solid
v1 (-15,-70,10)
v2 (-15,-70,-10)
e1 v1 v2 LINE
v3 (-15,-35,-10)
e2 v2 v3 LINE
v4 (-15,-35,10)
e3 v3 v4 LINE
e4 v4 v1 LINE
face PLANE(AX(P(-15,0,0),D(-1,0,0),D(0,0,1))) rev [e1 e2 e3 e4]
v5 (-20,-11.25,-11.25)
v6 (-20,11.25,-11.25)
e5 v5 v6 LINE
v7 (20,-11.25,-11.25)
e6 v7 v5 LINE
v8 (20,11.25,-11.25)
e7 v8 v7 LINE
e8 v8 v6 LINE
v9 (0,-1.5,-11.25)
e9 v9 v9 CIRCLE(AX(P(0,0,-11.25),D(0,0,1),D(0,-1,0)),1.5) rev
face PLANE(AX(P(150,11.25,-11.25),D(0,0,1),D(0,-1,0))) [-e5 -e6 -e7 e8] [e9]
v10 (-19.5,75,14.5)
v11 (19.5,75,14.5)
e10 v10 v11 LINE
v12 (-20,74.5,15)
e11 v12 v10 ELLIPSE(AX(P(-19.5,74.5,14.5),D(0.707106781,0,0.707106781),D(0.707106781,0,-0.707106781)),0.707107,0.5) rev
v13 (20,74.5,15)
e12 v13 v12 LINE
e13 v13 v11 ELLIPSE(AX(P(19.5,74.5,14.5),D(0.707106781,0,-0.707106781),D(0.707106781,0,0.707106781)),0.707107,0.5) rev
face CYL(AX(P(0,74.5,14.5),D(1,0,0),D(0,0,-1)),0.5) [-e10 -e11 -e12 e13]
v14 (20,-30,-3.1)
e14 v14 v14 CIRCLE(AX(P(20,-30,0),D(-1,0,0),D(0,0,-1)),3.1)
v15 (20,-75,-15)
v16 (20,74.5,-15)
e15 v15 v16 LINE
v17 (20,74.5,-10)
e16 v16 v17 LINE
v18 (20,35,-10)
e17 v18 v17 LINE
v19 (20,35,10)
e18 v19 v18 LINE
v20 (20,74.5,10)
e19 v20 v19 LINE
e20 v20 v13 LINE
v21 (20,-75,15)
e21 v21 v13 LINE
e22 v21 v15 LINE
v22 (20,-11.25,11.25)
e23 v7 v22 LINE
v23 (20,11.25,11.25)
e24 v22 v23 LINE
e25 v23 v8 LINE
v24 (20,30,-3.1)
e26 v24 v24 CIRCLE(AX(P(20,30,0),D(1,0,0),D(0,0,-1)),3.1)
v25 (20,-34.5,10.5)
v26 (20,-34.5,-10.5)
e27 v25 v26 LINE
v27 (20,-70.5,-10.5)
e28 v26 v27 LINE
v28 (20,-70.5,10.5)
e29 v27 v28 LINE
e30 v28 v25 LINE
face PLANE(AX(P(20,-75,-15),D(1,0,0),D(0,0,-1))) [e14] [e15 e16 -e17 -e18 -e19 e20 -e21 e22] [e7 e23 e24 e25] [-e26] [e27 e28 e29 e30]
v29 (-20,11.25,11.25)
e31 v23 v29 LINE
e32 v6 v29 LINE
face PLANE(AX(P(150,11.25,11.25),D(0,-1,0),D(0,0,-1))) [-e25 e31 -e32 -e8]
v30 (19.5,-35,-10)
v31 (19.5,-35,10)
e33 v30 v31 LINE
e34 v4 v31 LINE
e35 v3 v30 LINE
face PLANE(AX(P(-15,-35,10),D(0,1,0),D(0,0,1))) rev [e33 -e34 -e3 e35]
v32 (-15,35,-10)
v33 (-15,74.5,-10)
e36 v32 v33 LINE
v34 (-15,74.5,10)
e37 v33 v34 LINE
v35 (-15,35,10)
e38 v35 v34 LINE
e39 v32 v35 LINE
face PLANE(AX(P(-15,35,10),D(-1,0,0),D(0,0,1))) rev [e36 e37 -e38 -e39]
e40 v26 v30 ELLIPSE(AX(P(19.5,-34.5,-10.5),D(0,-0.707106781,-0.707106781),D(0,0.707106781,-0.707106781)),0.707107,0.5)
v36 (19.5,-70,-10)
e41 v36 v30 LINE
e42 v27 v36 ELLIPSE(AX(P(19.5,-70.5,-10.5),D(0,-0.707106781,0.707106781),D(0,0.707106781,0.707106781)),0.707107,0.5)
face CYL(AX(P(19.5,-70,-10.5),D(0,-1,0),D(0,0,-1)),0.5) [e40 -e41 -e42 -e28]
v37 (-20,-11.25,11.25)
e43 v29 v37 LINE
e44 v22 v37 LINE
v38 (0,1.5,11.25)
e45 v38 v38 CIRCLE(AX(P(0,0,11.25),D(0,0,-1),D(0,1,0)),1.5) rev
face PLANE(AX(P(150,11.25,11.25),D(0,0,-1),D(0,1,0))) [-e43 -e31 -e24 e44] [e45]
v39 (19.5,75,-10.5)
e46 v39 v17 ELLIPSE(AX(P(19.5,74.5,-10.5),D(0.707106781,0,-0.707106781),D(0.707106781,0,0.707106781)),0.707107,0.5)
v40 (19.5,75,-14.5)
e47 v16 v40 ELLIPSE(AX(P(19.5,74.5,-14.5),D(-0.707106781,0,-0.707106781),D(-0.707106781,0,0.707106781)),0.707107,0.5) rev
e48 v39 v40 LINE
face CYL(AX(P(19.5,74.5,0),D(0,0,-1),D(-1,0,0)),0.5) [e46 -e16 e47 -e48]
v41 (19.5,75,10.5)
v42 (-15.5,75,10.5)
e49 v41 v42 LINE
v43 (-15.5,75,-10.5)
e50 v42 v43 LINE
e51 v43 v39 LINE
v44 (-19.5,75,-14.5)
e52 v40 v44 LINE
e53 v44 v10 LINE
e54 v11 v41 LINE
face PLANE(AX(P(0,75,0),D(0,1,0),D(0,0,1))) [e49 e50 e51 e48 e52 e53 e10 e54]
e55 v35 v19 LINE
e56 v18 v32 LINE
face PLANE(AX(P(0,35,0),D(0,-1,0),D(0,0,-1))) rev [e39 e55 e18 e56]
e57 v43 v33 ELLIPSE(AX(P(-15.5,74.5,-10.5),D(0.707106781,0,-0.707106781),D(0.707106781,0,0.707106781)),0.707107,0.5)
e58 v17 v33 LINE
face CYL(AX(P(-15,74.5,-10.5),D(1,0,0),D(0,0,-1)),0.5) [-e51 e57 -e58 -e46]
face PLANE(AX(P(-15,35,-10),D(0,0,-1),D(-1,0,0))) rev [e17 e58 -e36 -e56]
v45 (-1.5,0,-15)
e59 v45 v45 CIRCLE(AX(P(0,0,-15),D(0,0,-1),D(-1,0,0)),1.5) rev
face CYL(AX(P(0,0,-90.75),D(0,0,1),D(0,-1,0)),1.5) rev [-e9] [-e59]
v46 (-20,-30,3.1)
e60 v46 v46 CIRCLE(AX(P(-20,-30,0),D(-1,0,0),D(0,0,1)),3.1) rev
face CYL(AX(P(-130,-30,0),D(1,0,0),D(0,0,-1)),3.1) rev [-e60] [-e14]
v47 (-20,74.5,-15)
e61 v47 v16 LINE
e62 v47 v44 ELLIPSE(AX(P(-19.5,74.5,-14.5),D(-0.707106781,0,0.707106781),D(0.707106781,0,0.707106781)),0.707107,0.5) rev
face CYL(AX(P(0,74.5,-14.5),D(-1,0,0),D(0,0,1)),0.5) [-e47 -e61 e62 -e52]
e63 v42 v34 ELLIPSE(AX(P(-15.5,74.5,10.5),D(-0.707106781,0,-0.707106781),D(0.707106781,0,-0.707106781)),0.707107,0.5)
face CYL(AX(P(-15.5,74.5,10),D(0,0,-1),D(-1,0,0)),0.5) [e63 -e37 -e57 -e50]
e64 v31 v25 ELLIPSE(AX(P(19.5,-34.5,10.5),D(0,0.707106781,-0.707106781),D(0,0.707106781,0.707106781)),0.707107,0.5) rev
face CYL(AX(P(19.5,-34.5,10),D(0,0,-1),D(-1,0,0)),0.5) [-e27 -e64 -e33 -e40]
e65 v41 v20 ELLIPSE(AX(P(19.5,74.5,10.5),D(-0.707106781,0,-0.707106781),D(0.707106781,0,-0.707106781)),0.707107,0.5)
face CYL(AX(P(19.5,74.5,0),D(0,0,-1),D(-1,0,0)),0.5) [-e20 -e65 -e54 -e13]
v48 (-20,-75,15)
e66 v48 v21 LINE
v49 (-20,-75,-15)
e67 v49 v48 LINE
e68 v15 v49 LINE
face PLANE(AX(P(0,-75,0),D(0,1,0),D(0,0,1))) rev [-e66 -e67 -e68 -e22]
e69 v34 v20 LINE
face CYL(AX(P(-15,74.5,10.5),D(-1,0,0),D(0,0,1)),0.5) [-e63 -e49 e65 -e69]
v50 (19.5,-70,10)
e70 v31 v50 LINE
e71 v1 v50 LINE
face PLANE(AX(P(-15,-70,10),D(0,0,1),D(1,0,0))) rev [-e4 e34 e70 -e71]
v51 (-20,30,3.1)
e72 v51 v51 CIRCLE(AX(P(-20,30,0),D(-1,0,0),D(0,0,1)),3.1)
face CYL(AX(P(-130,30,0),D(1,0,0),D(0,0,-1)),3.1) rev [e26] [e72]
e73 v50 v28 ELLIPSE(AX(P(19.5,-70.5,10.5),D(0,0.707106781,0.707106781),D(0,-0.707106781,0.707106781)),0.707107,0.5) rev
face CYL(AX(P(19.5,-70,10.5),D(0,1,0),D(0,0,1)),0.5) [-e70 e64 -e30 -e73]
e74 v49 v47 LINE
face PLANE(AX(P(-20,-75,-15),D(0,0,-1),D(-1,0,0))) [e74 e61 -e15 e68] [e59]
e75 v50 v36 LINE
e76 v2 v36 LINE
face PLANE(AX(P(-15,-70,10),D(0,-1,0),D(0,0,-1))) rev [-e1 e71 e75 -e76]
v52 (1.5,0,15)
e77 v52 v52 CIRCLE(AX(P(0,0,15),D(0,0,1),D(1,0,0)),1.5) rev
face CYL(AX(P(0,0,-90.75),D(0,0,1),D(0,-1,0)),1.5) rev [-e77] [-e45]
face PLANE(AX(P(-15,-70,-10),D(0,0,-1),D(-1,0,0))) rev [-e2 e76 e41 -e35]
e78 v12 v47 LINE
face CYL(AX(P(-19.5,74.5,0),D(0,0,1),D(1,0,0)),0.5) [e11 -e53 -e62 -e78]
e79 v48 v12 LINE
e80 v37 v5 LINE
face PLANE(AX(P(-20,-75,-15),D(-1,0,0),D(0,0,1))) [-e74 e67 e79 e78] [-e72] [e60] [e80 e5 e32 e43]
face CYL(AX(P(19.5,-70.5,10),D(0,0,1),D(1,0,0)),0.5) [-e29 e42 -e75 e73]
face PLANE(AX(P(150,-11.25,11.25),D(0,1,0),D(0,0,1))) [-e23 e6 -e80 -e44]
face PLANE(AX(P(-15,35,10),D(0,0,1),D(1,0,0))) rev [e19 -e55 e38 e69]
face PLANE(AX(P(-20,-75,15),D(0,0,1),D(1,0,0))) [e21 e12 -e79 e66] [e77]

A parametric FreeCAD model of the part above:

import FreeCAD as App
import Part
import Sketcher

V = App.Vector


def edges_at(feature, points):
    """Names of the edges that pass closest to the given points."""
    edges = feature.Shape.Edges
    near = lambda p: min(range(len(edges)), key=lambda i: edges[i].distToShape(Part.Vertex(*p))[0])
    return sorted({f"Edge{near(p) + 1}" for p in points})


def add_polygon(sketch, points):
    """Adds a closed chain of lines whose ends are joined by coincident constraints."""
    first, n = sketch.GeometryCount, len(points)
    for a, b in zip(points, points[1:] + points[:1]):
        sketch.addGeometry(Part.LineSegment(App.Vector(*a, 0), App.Vector(*b, 0)), False)
    for i in range(n):
        sketch.addConstraint(Sketcher.Constraint("Coincident", first + i, 2, first + (i + 1) % n, 1))

doc = App.newDocument("Part")
body = doc.addObject("PartDesign::Body", "Body")

# Sketch on XZ plane
sketch1 = body.newObject("Sketcher::SketchObject", "Sketch")
sketch1.AttachmentSupport = (doc.getObject("XZ_Plane"), [""])
sketch1.MapMode = "FlatFace"
add_polygon(sketch1, [(-20, -15), (-20, 15), (20, 15), (20, -15)])  # lines 0-3
sketch1.addConstraint(Sketcher.Constraint("Vertical", 0))
sketch1.addConstraint(Sketcher.Constraint("Horizontal", 1))
sketch1.addConstraint(Sketcher.Constraint("Vertical", 2))
sketch1.addConstraint(Sketcher.Constraint("Horizontal", 3))
sketch1.addConstraint(Sketcher.Constraint("Symmetric", 0, 2, 2, 2, -1, 1))
sketch1.addConstraint(Sketcher.Constraint("DistanceX", 1, 1, 1, 2, 40.0))
sketch1.addConstraint(Sketcher.Constraint("DistanceY", 0, 1, 0, 2, 30.0))
pad1 = body.newObject("PartDesign::Pad", "Pad")
pad1.Profile = sketch1
pad1.Type = "TwoLengths"
pad1.Length = 75
pad1.Length2 = 75
pad1.Reversed = True

# Sketch on YZ plane
sketch2 = body.newObject("Sketcher::SketchObject", "Sketch001")
sketch2.AttachmentSupport = (doc.getObject("YZ_Plane"), [""])
sketch2.MapMode = "FlatFace"
sketch2.AttachmentOffset = App.Placement(V(0, 0, 20), App.Rotation())
sketch2.addGeometry(Part.Circle(V(30, 0, 0), V(0, 0, 1), 3.1), False)
sketch2.addConstraint(Sketcher.Constraint("PointOnObject", 0, 3, -1))
sketch2.addConstraint(Sketcher.Constraint("Diameter", 0, 6.2))
sketch2.addConstraint(Sketcher.Constraint("DistanceX", -1, 1, 0, 3, 30.0))
pocket1 = body.newObject("PartDesign::Pocket", "Pocket")
pocket1.Profile = sketch2
pocket1.Length = 150
doc.recompute()

mirrored = body.newObject("PartDesign::Mirrored", "Mirrored")
mirrored.Originals = [pocket1]
mirrored.MirrorPlane = (doc.getObject("XZ_Plane"), [""])
body.Tip = mirrored

# Sketch on YZ plane
sketch3 = body.newObject("Sketcher::SketchObject", "Sketch002")
sketch3.AttachmentSupport = (doc.getObject("YZ_Plane"), [""])
sketch3.MapMode = "FlatFace"
add_polygon(sketch3, [(11.25, 11.25), (-11.25, 11.25), (-11.25, -11.25), (11.25, -11.25)])  # lines 0-3
sketch3.addConstraint(Sketcher.Constraint("Horizontal", 0))
sketch3.addConstraint(Sketcher.Constraint("Vertical", 1))
sketch3.addConstraint(Sketcher.Constraint("Horizontal", 2))
sketch3.addConstraint(Sketcher.Constraint("Vertical", 3))
sketch3.addConstraint(Sketcher.Constraint("Symmetric", 0, 2, 2, 2, -1, 1))
sketch3.addConstraint(Sketcher.Constraint("Equal", 2, 1))
sketch3.addConstraint(Sketcher.Constraint("DistanceX", 0, 2, 0, 1, 22.5))
pocket2 = body.newObject("PartDesign::Pocket", "Pocket001")
pocket2.Profile = sketch3
pocket2.Type = "ThroughAll"
pocket2.Midplane = True

# Sketch on XZ plane
sketch4 = body.newObject("Sketcher::SketchObject", "Sketch003")
sketch4.AttachmentSupport = (doc.getObject("XZ_Plane"), [""])
sketch4.MapMode = "FlatFace"
sketch4.AttachmentOffset = App.Placement(V(0, 0, -75), App.Rotation())
add_polygon(sketch4, [(-15, -10), (-15, 10), (43.590656, 10), (43.590656, -10)])  # lines 0-3
sketch4.addConstraint(Sketcher.Constraint("Vertical", 0))
sketch4.addConstraint(Sketcher.Constraint("Horizontal", 1))
sketch4.addConstraint(Sketcher.Constraint("Vertical", 2))
sketch4.addConstraint(Sketcher.Constraint("Horizontal", 3))
sketch4.addConstraint(Sketcher.Constraint("DistanceY", 0, 1, 0, 2, 20.0))
sketch4.addConstraint(Sketcher.Constraint("DistanceX", 0, 2, -1, 1, 15.0))
sketch4.addConstraint(Sketcher.Constraint("DistanceY", -1, 1, 0, 2, 10.0))
sketch4.addConstraint(Sketcher.Constraint("DistanceX", 1, 1, 1, 2, 58.590656))
pocket3 = body.newObject("PartDesign::Pocket", "Pocket002")
pocket3.Profile = sketch4
pocket3.Length = 40
pocket3.Reversed = True

# Sketch on YZ plane
sketch5 = body.newObject("Sketcher::SketchObject", "Sketch004")
sketch5.AttachmentSupport = (doc.getObject("YZ_Plane"), [""])
sketch5.MapMode = "FlatFace"
sketch5.AttachmentOffset = App.Placement(V(0, 0, 20), App.Rotation())
add_polygon(sketch5, [(-35, 10), (-70, 10), (-70, -10), (-35, -10)])  # lines 0-3
sketch5.addConstraint(Sketcher.Constraint("Horizontal", 0))
sketch5.addConstraint(Sketcher.Constraint("Vertical", 1))
sketch5.addConstraint(Sketcher.Constraint("Horizontal", 2))
sketch5.addConstraint(Sketcher.Constraint("Vertical", 3))
sketch5.addConstraint(Sketcher.Constraint("DistanceX", 0, 2, 0, 1, 35.0))
sketch5.addConstraint(Sketcher.Constraint("DistanceY", 1, 2, 1, 1, 20.0))
sketch5.addConstraint(Sketcher.Constraint("DistanceX", 0, 2, -1, 1, 70.0))
sketch5.addConstraint(Sketcher.Constraint("DistanceY", -1, 1, 0, 2, 10.0))
pocket4 = body.newObject("PartDesign::Pocket", "Pocket003")
pocket4.Profile = sketch5
pocket4.Length = 35
doc.recompute()

fillet = body.newObject("PartDesign::Fillet", "Fillet")
fillet.Base = (pocket4, edges_at(pocket4, [
    (20, 75, 12.5),
    (0, 75, -15),
    (-20, 75, 0),
    (0, 75, 15),
    (20, 75, -12.5),
    (2.5, 75, -10),
    (2.5, 75, 10),
    (-15, 75, 0),
]))
fillet.Radius = 0.5
doc.recompute()

fillet2 = body.newObject("PartDesign::Fillet", "Fillet001")
fillet2.Base = (fillet, edges_at(fillet, [
    (20, -52.5, 10),
    (20, -70, 0),
    (20, -52.5, -10),
    (20, -35, 0),
]))
fillet2.Radius = 0.5

# Sketch on XY plane
sketch6 = body.newObject("Sketcher::SketchObject", "Sketch005")
sketch6.AttachmentSupport = (doc.getObject("XY_Plane"), [""])
sketch6.MapMode = "FlatFace"
sketch6.AttachmentOffset = App.Placement(V(0, 0, 11.25), App.Rotation())
sketch6.addGeometry(Part.Circle(V(0, 0, 0), V(0, 0, 1), 1.5), False)
sketch6.addConstraint(Sketcher.Constraint("Coincident", 0, 3, -1, 1))
sketch6.addConstraint(Sketcher.Constraint("Diameter", 0, 3.0))
pocket5 = body.newObject("PartDesign::Pocket", "Pocket004")
pocket5.Profile = sketch6
pocket5.Type = "ThroughAll"
pocket5.Midplane = True

doc.recompute()
